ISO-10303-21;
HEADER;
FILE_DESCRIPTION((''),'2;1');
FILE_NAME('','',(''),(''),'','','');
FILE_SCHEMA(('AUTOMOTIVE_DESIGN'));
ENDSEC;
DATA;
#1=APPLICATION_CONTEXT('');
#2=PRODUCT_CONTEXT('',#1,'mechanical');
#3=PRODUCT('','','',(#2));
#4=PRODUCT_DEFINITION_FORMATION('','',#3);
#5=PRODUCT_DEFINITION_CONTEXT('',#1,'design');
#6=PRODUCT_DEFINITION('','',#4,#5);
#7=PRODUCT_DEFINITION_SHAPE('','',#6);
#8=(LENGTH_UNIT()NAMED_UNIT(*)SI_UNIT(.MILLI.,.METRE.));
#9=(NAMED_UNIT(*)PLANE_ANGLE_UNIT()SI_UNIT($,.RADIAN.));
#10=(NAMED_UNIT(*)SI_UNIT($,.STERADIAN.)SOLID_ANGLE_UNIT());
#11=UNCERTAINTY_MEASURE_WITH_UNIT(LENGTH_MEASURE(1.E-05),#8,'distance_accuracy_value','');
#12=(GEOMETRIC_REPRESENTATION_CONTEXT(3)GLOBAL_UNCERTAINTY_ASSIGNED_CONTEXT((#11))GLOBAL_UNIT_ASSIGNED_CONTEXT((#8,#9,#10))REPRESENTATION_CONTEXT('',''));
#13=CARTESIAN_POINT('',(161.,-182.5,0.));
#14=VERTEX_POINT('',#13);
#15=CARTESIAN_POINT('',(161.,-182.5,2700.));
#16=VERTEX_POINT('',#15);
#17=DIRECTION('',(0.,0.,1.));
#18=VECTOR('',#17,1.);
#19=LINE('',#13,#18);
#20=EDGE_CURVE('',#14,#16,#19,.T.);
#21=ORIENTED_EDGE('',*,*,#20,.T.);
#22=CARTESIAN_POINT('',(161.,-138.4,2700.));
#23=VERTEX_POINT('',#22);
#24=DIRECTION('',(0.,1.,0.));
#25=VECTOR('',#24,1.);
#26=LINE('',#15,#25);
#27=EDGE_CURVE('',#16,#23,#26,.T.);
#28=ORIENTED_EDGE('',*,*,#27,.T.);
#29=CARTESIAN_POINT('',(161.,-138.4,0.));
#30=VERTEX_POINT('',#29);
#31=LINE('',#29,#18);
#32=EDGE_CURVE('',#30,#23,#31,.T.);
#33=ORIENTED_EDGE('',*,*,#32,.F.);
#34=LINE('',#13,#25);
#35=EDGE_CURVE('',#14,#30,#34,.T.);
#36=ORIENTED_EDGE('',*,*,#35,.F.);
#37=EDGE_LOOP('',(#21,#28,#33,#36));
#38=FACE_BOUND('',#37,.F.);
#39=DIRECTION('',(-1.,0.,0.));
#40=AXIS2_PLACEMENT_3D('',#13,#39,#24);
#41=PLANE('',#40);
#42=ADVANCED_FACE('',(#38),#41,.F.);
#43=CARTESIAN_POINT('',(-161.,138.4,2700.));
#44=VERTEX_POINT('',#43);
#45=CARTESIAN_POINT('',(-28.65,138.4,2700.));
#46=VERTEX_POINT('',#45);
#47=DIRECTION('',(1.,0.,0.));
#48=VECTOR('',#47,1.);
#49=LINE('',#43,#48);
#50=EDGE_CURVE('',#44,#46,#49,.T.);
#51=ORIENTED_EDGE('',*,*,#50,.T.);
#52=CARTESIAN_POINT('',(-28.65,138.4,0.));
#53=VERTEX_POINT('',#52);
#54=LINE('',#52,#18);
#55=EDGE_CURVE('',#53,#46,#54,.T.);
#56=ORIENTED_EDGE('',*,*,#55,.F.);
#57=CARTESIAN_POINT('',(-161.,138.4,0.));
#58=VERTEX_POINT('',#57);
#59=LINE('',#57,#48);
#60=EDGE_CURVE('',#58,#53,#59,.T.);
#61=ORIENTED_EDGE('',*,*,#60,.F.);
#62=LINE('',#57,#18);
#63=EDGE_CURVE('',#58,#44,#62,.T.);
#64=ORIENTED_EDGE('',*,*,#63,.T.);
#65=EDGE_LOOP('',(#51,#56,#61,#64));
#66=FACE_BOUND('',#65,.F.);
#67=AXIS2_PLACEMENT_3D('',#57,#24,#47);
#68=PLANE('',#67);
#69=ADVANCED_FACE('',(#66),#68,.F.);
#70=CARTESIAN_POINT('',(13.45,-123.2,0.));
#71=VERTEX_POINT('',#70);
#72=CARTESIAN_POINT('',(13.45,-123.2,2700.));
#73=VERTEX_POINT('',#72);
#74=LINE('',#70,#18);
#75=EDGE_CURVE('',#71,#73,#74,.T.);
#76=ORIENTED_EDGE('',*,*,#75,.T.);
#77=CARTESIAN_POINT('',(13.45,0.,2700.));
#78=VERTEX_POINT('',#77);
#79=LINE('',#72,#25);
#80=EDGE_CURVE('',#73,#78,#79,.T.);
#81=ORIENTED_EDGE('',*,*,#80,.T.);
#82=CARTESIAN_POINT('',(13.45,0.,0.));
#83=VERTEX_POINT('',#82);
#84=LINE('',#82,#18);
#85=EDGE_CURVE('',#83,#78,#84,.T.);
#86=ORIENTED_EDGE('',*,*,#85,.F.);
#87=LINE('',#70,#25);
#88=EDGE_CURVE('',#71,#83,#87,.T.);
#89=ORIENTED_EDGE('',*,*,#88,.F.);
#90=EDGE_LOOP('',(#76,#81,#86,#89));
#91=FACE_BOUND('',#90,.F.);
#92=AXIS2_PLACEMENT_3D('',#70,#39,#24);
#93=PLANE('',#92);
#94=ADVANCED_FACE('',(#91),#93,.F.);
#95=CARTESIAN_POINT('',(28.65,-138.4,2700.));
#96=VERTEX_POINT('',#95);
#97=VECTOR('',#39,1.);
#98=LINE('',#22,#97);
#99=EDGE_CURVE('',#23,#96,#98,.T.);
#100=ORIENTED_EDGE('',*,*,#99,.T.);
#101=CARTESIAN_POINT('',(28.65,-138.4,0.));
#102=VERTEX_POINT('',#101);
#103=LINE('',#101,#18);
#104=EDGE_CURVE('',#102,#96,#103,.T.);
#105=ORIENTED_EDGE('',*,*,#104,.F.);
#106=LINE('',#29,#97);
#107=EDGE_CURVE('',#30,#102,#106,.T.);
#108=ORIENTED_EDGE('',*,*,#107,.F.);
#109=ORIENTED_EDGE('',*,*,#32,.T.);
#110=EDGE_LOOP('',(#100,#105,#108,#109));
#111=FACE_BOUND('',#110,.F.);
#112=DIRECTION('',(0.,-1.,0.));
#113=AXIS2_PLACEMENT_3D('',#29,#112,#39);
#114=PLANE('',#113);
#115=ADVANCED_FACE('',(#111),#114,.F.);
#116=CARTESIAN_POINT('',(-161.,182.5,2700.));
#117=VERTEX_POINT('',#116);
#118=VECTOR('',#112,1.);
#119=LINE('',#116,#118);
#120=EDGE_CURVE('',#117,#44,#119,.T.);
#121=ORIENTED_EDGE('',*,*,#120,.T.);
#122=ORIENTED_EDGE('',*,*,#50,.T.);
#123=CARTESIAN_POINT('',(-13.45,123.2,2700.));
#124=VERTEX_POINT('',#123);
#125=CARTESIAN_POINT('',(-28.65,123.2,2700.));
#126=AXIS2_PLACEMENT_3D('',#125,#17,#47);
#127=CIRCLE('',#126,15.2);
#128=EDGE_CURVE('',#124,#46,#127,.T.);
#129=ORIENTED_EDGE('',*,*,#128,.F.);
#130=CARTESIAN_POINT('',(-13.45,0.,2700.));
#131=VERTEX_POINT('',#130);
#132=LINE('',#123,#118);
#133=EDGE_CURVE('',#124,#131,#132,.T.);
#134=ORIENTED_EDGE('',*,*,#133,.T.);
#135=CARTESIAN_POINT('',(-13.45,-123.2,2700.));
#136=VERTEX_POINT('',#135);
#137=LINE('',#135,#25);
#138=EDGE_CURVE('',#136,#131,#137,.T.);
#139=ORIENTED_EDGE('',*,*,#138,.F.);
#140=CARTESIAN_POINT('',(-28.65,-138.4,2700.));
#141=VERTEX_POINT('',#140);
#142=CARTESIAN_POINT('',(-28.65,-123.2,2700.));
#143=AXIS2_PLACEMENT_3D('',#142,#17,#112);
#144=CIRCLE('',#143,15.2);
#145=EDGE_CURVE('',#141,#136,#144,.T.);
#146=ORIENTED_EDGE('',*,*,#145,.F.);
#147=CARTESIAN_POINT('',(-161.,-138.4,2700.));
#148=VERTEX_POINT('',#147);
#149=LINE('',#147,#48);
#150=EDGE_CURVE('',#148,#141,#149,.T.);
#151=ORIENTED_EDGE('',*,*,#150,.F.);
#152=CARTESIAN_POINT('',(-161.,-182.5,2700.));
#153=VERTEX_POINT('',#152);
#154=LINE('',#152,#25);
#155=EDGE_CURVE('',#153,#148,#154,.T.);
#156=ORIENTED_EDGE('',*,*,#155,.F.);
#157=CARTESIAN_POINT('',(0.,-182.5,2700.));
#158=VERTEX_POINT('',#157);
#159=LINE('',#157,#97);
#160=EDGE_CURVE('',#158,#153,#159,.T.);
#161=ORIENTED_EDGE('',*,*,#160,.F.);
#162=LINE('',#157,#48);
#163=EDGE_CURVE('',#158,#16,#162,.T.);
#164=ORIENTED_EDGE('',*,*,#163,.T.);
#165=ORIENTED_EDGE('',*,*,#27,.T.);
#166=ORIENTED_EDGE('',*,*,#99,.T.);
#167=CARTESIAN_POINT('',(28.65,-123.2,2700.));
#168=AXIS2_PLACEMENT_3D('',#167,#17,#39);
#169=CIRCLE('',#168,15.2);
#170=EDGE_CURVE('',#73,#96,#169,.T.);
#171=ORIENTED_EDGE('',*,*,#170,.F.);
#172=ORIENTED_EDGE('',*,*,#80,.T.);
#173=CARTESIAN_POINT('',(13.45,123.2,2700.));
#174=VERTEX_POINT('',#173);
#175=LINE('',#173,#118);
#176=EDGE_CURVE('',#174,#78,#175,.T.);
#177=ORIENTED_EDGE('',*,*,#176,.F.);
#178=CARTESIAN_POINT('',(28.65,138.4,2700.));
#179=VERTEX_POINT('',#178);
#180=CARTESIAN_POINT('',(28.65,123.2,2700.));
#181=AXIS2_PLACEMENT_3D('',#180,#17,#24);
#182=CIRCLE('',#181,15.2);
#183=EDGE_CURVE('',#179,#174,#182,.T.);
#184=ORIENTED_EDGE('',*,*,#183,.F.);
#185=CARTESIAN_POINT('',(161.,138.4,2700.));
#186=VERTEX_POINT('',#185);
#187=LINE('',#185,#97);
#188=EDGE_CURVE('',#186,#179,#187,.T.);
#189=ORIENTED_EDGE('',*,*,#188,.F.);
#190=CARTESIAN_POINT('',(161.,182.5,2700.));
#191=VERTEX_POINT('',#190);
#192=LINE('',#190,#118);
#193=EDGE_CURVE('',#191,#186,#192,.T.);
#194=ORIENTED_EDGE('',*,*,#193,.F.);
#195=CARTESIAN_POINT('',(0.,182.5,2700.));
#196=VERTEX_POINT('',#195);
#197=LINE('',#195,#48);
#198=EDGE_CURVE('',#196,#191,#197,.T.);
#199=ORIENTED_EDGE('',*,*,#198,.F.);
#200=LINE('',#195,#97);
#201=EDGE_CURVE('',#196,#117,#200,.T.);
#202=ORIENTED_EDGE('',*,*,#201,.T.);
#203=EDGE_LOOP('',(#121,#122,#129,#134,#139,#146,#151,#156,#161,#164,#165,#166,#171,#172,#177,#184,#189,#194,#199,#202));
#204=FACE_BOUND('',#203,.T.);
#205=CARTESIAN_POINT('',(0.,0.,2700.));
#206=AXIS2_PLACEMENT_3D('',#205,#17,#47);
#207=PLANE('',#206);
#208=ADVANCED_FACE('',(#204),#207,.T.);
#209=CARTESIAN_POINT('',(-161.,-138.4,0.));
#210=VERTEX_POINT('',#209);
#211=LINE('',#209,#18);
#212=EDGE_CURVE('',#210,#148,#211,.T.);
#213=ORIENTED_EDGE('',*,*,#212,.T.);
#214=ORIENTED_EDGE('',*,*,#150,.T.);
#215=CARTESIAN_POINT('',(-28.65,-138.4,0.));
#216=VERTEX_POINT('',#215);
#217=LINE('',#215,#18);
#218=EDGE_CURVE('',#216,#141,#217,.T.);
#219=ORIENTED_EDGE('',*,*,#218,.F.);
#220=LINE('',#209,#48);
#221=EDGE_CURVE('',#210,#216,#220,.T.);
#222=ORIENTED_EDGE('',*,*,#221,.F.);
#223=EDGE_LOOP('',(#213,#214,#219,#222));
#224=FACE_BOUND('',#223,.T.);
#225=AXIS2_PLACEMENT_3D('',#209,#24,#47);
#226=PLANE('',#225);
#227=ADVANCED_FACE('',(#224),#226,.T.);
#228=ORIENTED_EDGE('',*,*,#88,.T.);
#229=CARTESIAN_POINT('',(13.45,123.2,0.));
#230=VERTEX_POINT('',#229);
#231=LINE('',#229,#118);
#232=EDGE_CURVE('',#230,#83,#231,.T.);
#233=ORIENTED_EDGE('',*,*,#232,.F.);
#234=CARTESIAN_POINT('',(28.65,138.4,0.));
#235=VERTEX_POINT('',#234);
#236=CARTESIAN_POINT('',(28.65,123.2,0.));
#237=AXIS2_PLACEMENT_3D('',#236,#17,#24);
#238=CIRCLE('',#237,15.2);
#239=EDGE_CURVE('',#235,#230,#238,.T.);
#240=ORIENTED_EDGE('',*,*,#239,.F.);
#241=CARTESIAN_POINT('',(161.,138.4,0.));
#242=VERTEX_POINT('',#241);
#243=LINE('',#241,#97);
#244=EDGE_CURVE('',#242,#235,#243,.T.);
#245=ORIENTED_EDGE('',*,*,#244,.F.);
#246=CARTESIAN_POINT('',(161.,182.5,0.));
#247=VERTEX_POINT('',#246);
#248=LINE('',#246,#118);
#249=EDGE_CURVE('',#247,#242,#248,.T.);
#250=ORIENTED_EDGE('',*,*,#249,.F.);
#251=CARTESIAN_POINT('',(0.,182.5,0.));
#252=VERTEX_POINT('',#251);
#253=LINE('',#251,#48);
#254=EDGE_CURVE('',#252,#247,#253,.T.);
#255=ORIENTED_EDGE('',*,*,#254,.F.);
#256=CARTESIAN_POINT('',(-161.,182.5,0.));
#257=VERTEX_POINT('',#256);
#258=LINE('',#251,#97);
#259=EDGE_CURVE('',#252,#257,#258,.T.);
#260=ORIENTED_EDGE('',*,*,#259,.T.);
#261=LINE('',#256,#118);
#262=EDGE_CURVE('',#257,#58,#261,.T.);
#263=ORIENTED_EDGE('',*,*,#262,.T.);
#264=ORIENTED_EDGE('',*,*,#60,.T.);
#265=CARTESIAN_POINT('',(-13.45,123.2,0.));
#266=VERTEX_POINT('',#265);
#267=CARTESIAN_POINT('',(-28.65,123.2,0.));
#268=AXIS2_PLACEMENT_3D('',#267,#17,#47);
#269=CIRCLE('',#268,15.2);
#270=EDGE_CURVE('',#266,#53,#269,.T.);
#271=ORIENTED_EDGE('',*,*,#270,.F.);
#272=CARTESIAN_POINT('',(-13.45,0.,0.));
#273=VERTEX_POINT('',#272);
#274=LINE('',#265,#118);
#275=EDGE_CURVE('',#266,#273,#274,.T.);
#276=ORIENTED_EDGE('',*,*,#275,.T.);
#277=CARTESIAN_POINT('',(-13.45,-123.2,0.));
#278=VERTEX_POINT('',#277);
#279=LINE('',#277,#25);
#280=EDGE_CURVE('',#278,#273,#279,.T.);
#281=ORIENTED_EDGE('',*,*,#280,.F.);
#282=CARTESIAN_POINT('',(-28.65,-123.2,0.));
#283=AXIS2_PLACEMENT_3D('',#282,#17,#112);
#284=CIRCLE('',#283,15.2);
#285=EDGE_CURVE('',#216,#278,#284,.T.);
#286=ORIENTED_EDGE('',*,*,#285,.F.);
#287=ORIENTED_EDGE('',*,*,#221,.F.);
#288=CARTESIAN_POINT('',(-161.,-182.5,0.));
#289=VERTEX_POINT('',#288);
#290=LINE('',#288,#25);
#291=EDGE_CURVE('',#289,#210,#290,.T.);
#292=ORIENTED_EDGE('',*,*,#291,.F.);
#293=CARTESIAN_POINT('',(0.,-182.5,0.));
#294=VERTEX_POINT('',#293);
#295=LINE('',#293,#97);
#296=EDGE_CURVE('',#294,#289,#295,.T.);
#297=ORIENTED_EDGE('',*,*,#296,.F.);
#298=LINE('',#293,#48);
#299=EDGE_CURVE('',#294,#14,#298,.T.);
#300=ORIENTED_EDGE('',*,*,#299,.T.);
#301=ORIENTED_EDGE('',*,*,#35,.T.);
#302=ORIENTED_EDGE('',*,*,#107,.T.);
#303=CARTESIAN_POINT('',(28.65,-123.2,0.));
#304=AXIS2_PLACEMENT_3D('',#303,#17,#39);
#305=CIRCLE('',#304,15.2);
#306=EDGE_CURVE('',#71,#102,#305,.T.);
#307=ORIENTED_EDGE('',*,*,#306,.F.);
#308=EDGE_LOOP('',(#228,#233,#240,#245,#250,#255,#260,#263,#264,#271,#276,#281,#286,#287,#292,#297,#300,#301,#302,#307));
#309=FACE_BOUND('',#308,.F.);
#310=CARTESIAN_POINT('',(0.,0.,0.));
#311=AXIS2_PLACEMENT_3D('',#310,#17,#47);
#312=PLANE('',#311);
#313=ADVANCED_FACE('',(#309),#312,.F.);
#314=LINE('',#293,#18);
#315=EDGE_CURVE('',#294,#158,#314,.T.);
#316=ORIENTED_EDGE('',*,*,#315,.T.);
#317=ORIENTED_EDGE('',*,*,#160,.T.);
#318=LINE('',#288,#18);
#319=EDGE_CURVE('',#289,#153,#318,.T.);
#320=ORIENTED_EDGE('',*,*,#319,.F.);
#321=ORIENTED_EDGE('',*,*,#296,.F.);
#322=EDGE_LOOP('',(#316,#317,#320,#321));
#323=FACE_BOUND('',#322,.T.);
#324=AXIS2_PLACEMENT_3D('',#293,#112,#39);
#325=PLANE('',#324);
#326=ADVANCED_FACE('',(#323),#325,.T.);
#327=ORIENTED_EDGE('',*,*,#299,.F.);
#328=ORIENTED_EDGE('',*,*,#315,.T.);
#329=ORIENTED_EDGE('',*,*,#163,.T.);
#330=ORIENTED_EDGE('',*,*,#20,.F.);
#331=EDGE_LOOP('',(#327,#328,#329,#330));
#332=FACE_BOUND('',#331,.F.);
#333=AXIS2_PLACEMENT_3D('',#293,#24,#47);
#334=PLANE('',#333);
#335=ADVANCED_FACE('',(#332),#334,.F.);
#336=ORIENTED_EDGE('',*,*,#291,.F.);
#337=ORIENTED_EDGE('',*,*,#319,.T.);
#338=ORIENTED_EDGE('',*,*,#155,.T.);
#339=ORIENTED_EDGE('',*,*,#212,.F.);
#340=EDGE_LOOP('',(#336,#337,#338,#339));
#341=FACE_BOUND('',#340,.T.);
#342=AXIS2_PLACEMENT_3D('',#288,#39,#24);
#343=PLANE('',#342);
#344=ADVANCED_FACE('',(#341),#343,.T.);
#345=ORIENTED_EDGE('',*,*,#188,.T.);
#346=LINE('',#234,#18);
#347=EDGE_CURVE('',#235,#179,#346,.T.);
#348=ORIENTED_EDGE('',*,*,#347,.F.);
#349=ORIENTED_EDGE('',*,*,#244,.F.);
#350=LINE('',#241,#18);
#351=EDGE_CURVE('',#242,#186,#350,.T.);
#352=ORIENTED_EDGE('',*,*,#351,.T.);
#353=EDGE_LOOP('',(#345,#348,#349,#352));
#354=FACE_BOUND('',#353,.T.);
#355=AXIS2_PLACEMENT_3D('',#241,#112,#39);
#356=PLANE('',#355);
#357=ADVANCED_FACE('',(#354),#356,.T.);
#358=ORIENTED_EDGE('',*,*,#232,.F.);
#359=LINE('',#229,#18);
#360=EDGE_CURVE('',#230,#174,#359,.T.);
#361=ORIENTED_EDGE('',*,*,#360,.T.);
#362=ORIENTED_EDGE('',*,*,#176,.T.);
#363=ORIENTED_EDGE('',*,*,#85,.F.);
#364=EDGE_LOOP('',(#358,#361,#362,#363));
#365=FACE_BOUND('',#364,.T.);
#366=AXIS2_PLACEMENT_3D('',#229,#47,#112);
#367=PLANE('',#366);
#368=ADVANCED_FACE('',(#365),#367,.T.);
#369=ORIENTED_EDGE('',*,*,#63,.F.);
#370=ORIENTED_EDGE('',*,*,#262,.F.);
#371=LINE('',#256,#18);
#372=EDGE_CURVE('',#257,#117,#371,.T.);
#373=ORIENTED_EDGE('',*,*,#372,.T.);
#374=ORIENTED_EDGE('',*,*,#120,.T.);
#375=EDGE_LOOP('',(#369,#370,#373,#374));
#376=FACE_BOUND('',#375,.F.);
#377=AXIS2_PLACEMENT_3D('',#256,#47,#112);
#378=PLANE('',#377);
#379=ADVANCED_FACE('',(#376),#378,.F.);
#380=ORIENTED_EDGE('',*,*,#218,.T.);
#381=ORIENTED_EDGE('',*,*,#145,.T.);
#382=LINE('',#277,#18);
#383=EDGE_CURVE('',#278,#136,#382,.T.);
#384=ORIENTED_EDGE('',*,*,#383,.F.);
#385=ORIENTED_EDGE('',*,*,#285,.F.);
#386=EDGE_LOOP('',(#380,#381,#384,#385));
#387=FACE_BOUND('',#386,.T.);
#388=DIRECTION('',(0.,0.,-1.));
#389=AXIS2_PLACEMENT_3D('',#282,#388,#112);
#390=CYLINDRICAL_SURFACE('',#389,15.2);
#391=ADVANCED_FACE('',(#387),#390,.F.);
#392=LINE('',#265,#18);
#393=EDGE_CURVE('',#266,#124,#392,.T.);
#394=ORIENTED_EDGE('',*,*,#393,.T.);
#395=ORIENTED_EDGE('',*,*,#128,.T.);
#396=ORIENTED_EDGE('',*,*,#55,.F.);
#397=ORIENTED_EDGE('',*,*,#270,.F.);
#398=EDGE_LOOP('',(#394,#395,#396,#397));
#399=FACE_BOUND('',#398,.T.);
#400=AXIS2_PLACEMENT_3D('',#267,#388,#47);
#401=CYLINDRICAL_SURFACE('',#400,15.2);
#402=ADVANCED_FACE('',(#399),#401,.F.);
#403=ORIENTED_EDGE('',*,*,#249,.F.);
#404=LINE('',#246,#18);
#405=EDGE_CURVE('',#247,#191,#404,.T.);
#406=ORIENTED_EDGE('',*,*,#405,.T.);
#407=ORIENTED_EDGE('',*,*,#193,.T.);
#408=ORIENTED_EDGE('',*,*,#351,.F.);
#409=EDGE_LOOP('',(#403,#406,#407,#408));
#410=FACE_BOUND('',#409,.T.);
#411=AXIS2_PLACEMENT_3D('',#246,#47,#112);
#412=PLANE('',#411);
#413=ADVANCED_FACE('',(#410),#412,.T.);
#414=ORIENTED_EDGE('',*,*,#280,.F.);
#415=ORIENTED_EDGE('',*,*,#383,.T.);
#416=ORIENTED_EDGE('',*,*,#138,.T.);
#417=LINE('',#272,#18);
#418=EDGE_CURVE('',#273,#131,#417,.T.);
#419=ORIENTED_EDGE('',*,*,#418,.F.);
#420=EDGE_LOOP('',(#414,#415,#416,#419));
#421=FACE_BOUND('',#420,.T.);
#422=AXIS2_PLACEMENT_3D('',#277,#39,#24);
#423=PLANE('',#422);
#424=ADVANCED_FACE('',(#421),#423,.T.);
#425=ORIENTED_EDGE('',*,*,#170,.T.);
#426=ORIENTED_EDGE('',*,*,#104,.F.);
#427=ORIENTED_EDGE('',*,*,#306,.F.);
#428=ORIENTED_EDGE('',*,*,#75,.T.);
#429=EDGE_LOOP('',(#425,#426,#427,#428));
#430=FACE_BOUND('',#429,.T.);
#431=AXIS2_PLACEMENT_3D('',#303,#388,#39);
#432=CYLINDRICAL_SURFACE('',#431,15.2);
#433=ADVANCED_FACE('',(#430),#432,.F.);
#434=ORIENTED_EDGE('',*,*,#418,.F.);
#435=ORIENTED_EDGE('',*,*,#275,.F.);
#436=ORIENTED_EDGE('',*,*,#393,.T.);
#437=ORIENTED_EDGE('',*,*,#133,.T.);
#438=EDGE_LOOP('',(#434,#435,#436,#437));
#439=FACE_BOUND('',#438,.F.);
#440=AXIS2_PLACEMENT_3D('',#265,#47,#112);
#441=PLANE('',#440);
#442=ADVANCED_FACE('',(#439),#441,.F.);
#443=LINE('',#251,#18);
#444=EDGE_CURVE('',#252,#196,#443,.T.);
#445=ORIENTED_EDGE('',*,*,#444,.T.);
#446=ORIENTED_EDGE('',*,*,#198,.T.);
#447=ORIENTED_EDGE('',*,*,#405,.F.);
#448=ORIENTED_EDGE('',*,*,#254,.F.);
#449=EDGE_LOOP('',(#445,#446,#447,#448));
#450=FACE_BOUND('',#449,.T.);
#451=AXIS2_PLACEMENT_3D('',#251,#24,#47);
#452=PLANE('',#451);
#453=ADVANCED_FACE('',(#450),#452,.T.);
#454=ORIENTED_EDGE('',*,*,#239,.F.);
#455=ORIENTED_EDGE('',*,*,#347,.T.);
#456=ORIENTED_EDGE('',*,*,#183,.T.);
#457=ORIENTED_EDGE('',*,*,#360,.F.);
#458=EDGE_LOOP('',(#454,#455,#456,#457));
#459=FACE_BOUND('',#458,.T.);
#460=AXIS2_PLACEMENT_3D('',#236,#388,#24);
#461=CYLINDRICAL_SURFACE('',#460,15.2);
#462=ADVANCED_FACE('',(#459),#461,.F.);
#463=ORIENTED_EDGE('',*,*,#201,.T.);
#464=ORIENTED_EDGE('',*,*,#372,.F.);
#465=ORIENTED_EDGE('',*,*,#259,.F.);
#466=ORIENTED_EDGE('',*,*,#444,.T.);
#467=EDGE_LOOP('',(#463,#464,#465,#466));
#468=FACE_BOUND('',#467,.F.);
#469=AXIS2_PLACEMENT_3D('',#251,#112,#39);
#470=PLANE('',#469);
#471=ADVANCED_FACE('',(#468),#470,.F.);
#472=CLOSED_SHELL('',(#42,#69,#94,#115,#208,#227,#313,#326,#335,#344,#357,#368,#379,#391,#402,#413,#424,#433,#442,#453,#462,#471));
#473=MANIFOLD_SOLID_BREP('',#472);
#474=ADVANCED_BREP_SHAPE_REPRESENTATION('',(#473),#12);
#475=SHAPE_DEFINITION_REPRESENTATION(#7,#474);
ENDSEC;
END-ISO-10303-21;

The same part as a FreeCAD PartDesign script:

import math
import FreeCAD as App
import Part
import Sketcher

doc = App.newDocument("Part")
body = doc.addObject("PartDesign::Body", "Body")

# Sketch on XY plane
sketch1 = body.newObject("Sketcher::SketchObject", "Sketch")
sketch1.AttachmentSupport = (doc.getObject("XY_Plane"), [""])
sketch1.MapMode = "FlatFace"
sketch1.addGeometry([
    Part.LineSegment(App.Vector(-161, -138, 0), App.Vector(-161, -182, 0)),  # 0
    Part.LineSegment(App.Vector(-161, -182, 0), App.Vector(161, -182, 0)),  # 1
    Part.LineSegment(App.Vector(161, -182, 0), App.Vector(161, -138, 0)),  # 2
    Part.LineSegment(App.Vector(161, -138, 0), App.Vector(29, -138, 0)),  # 3
    Part.ArcOfCircle(Part.Circle(App.Vector(29, -123, 0), App.Vector(0, 0, 1), 15), math.radians(180), math.radians(270)),  # 4
    Part.LineSegment(App.Vector(13, -123, 0), App.Vector(13, 123, 0)),  # 5
    Part.ArcOfCircle(Part.Circle(App.Vector(29, 123, 0), App.Vector(0, 0, 1), 15), math.radians(90), math.radians(180)),  # 6
    Part.LineSegment(App.Vector(29, 138, 0), App.Vector(161, 138, 0)),  # 7
    Part.LineSegment(App.Vector(161, 138, 0), App.Vector(161, 182, 0)),  # 8
    Part.LineSegment(App.Vector(161, 182, 0), App.Vector(-161, 182, 0)),  # 9
    Part.LineSegment(App.Vector(-161, 182, 0), App.Vector(-161, 138, 0)),  # 10
    Part.LineSegment(App.Vector(-161, 138, 0), App.Vector(-29, 138, 0)),  # 11
    Part.ArcOfCircle(Part.Circle(App.Vector(-29, 123, 0), App.Vector(0, 0, 1), 15), math.radians(0), math.radians(90)),  # 12
    Part.LineSegment(App.Vector(-13, 123, 0), App.Vector(-13, -123, 0)),  # 13
    Part.ArcOfCircle(Part.Circle(App.Vector(-29, -123, 0), App.Vector(0, 0, 1), 15), math.radians(-90), math.radians(0)),  # 14
    Part.LineSegment(App.Vector(-29, -138, 0), App.Vector(-161, -138, 0)),  # 15
], False)
sketch1.addConstraint([
    Sketcher.Constraint("Coincident", 0, 2, 1, 1),
    Sketcher.Constraint("Coincident", 1, 2, 2, 1),
    Sketcher.Constraint("Coincident", 2, 2, 3, 1),
    Sketcher.Constraint("Tangent", 3, 2, 4, 2),
    Sketcher.Constraint("Tangent", 4, 1, 5, 1),
    Sketcher.Constraint("Tangent", 5, 2, 6, 2),
    Sketcher.Constraint("Tangent", 6, 1, 7, 1),
    Sketcher.Constraint("Coincident", 7, 2, 8, 1),
    Sketcher.Constraint("Coincident", 8, 2, 9, 1),
    Sketcher.Constraint("Coincident", 9, 2, 10, 1),
    Sketcher.Constraint("Coincident", 10, 2, 11, 1),
    Sketcher.Constraint("Tangent", 11, 2, 12, 2),
    Sketcher.Constraint("Tangent", 12, 1, 13, 1),
    Sketcher.Constraint("Tangent", 13, 2, 14, 2),
    Sketcher.Constraint("Tangent", 14, 1, 15, 1),
    Sketcher.Constraint("Coincident", 15, 2, 0, 1),
    Sketcher.Constraint("Vertical", 0),
    Sketcher.Constraint("Horizontal", 1),
    Sketcher.Constraint("Vertical", 2),
    Sketcher.Constraint("Horizontal", 3),
    Sketcher.Constraint("Vertical", 5),
    Sketcher.Constraint("Horizontal", 7),
    Sketcher.Constraint("Vertical", 8),
    Sketcher.Constraint("Horizontal", 9),
    Sketcher.Constraint("Vertical", 10),
    Sketcher.Constraint("Horizontal", 11),
    Sketcher.Constraint("Vertical", 13),
    Sketcher.Constraint("Horizontal", 15),
    Sketcher.Constraint("Equal", 4, 6),
    Sketcher.Constraint("Equal", 6, 12),
    Sketcher.Constraint("Equal", 12, 14),
    Sketcher.Constraint("Symmetric", 4, 3, 12, 3, -1, 1),
    Sketcher.Constraint("Symmetric", 0, 2, 8, 2, -1, 1),
    Sketcher.Constraint("Symmetric", 7, 2, 10, 2, -2),
    Sketcher.Constraint("Symmetric", 2, 2, 15, 2, -2),
    Sketcher.Constraint("Radius", 4, 15.2),
    Sketcher.Constraint("DistanceY", 0, 2, 0, 1, 44.1),
    Sketcher.Constraint("DistanceX", 0, 2, -1, 1, 161.0),
    Sketcher.Constraint("DistanceY", 0, 2, -1, 1, 182.5),
    Sketcher.Constraint("DistanceX", -1, 1, 4, 1, 13.45),
])
pad1 = body.newObject("PartDesign::Pad", "Pad")
pad1.Profile = sketch1
pad1.Length = 2700

doc.recompute()
